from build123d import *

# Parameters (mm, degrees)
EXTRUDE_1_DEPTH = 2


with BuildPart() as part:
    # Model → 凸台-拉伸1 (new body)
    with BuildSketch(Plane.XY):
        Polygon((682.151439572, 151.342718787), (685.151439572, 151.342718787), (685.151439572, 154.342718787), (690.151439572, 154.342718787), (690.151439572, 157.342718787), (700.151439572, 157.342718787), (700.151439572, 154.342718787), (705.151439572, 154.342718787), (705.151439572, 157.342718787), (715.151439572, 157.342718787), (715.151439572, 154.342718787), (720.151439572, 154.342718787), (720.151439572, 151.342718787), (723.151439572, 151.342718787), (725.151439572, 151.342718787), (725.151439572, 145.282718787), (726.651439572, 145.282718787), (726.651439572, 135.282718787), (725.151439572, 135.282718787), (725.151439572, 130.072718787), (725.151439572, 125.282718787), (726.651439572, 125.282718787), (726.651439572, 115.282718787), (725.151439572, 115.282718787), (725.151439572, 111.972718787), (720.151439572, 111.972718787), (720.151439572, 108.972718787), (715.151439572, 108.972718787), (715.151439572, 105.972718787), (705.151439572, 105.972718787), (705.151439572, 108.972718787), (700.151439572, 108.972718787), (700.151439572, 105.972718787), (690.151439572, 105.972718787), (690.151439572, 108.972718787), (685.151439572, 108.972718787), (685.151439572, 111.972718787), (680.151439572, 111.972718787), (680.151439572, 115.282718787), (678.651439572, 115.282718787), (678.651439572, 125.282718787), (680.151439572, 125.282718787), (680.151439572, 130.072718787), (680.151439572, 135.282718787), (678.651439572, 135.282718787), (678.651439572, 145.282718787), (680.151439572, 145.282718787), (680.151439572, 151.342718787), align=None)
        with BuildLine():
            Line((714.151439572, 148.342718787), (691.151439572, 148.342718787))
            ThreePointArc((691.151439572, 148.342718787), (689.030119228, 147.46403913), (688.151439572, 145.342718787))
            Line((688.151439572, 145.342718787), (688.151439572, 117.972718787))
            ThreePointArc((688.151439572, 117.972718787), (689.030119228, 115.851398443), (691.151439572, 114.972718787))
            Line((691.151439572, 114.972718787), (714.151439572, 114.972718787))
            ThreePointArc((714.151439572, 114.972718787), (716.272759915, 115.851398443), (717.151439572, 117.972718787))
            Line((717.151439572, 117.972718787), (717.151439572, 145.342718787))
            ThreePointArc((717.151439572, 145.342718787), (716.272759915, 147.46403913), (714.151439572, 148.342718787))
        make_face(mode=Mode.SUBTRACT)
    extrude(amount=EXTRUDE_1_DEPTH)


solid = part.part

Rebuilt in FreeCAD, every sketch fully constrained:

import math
import FreeCAD as App
import Part
import Sketcher
from FreeCAD import Vector
Q = App.Units.Quantity

doc = App.newDocument("Part")
params = doc.addObject("Spreadsheet::Sheet", "Params")
for row, (alias, value) in enumerate([
    ("sketch1_radius", "3 mm"),
    ("sketch1_width", "5 mm"),
    ("sketch1_width2", "10 mm"),
    ("sketch1_width3", "23 mm"),
    ("sketch1_height", "3 mm"),
    ("pad1_length", "2 mm"),
], start=1):
    params.set(f"A{row}", alias)
    params.set(f"B{row}", "=" + value)
    params.setAlias(f"B{row}", alias)

body = doc.addObject("PartDesign::Body", "Body")

# Sketch on XY plane
sketch1 = body.newObject("Sketcher::SketchObject", "Sketch")
sketch1.AttachmentSupport = (doc.getObject("XY_Plane"), [""])
sketch1.MapMode = "FlatFace"
sketch1.addGeometry([
    Part.LineSegment(Vector(685.15144, 151.342719, 0), Vector(680.15144, 151.342719, 0)),  # 0
    Part.LineSegment(Vector(680.15144, 151.342719, 0), Vector(680.15144, 145.282719, 0)),  # 1
    Part.LineSegment(Vector(680.15144, 145.282719, 0), Vector(678.65144, 145.282719, 0)),  # 2
    Part.LineSegment(Vector(678.65144, 145.282719, 0), Vector(678.65144, 135.282719, 0)),  # 3
    Part.LineSegment(Vector(678.65144, 135.282719, 0), Vector(680.15144, 135.282719, 0)),  # 4
    Part.LineSegment(Vector(680.15144, 135.282719, 0), Vector(680.15144, 125.282719, 0)),  # 5
    Part.LineSegment(Vector(680.15144, 125.282719, 0), Vector(678.65144, 125.282719, 0)),  # 6
    Part.LineSegment(Vector(678.65144, 125.282719, 0), Vector(678.65144, 115.282719, 0)),  # 7
    Part.LineSegment(Vector(678.65144, 115.282719, 0), Vector(680.15144, 115.282719, 0)),  # 8
    Part.LineSegment(Vector(680.15144, 115.282719, 0), Vector(680.15144, 111.972719, 0)),  # 9
    Part.LineSegment(Vector(680.15144, 111.972719, 0), Vector(685.15144, 111.972719, 0)),  # 10
    Part.LineSegment(Vector(685.15144, 111.972719, 0), Vector(685.15144, 108.972719, 0)),  # 11
    Part.LineSegment(Vector(685.15144, 108.972719, 0), Vector(690.15144, 108.972719, 0)),  # 12
    Part.LineSegment(Vector(690.15144, 108.972719, 0), Vector(690.15144, 105.972719, 0)),  # 13
    Part.LineSegment(Vector(690.15144, 105.972719, 0), Vector(700.15144, 105.972719, 0)),  # 14
    Part.LineSegment(Vector(700.15144, 105.972719, 0), Vector(700.15144, 108.972719, 0)),  # 15
    Part.LineSegment(Vector(700.15144, 108.972719, 0), Vector(705.15144, 108.972719, 0)),  # 16
    Part.LineSegment(Vector(705.15144, 108.972719, 0), Vector(705.15144, 105.972719, 0)),  # 17
    Part.LineSegment(Vector(705.15144, 105.972719, 0), Vector(715.15144, 105.972719, 0)),  # 18
    Part.LineSegment(Vector(715.15144, 105.972719, 0), Vector(715.15144, 108.972719, 0)),  # 19
    Part.LineSegment(Vector(715.15144, 108.972719, 0), Vector(720.15144, 108.972719, 0)),  # 20
    Part.LineSegment(Vector(720.15144, 108.972719, 0), Vector(720.15144, 111.972719, 0)),  # 21
    Part.LineSegment(Vector(720.15144, 111.972719, 0), Vector(725.15144, 111.972719, 0)),  # 22
    Part.LineSegment(Vector(725.15144, 111.972719, 0), Vector(725.15144, 115.282719, 0)),  # 23
    Part.LineSegment(Vector(725.15144, 115.282719, 0), Vector(726.65144, 115.282719, 0)),  # 24
    Part.LineSegment(Vector(726.65144, 115.282719, 0), Vector(726.65144, 125.282719, 0)),  # 25
    Part.LineSegment(Vector(726.65144, 125.282719, 0), Vector(725.15144, 125.282719, 0)),  # 26
    Part.LineSegment(Vector(725.15144, 125.282719, 0), Vector(725.15144, 135.282719, 0)),  # 27
    Part.LineSegment(Vector(725.15144, 135.282719, 0), Vector(726.65144, 135.282719, 0)),  # 28
    Part.LineSegment(Vector(726.65144, 135.282719, 0), Vector(726.65144, 145.282719, 0)),  # 29
    Part.LineSegment(Vector(726.65144, 145.282719, 0), Vector(725.15144, 145.282719, 0)),  # 30
    Part.LineSegment(Vector(725.15144, 145.282719, 0), Vector(725.15144, 151.342719, 0)),  # 31
    Part.LineSegment(Vector(725.15144, 151.342719, 0), Vector(720.15144, 151.342719, 0)),  # 32
    Part.LineSegment(Vector(720.15144, 151.342719, 0), Vector(720.15144, 154.342719, 0)),  # 33
    Part.LineSegment(Vector(720.15144, 154.342719, 0), Vector(715.15144, 154.342719, 0)),  # 34
    Part.LineSegment(Vector(715.15144, 154.342719, 0), Vector(715.15144, 157.342719, 0)),  # 35
    Part.LineSegment(Vector(715.15144, 157.342719, 0), Vector(705.15144, 157.342719, 0)),  # 36
    Part.LineSegment(Vector(705.15144, 157.342719, 0), Vector(705.15144, 154.342719, 0)),  # 37
    Part.LineSegment(Vector(705.15144, 154.342719, 0), Vector(700.15144, 154.342719, 0)),  # 38
    Part.LineSegment(Vector(700.15144, 154.342719, 0), Vector(700.15144, 157.342719, 0)),  # 39
    Part.LineSegment(Vector(700.15144, 157.342719, 0), Vector(690.15144, 157.342719, 0)),  # 40
    Part.LineSegment(Vector(690.15144, 157.342719, 0), Vector(690.15144, 154.342719, 0)),  # 41
    Part.LineSegment(Vector(690.15144, 154.342719, 0), Vector(685.15144, 154.342719, 0)),  # 42
    Part.LineSegment(Vector(685.15144, 154.342719, 0), Vector(685.15144, 151.342719, 0)),  # 43
    Part.ArcOfCircle(Part.Circle(Vector(714.15144, 145.342719, 0), Vector(0, 0, 1), 3), math.radians(0), math.radians(90)),  # 44
    Part.LineSegment(Vector(717.15144, 145.342719, 0), Vector(717.15144, 117.972719, 0)),  # 45
    Part.ArcOfCircle(Part.Circle(Vector(714.15144, 117.972719, 0), Vector(0, 0, 1), 3), math.radians(-90), math.radians(0)),  # 46
    Part.LineSegment(Vector(714.15144, 114.972719, 0), Vector(691.15144, 114.972719, 0)),  # 47
    Part.ArcOfCircle(Part.Circle(Vector(691.15144, 117.972719, 0), Vector(0, 0, 1), 3), math.radians(180), math.radians(270)),  # 48
    Part.LineSegment(Vector(688.15144, 117.972719, 0), Vector(688.15144, 145.342719, 0)),  # 49
    Part.ArcOfCircle(Part.Circle(Vector(691.15144, 145.342719, 0), Vector(0, 0, 1), 3), math.radians(90), math.radians(180)),  # 50
    Part.LineSegment(Vector(691.15144, 148.342719, 0), Vector(714.15144, 148.342719, 0)),  # 51
], False)
sketch1.addConstraint([
    Sketcher.Constraint("Coincident", 0, 2, 1, 1),
    Sketcher.Constraint("Coincident", 1, 2, 2, 1),
    Sketcher.Constraint("Coincident", 2, 2, 3, 1),
    Sketcher.Constraint("Coincident", 3, 2, 4, 1),
    Sketcher.Constraint("Coincident", 4, 2, 5, 1),
    Sketcher.Constraint("Coincident", 5, 2, 6, 1),
    Sketcher.Constraint("Coincident", 6, 2, 7, 1),
    Sketcher.Constraint("Coincident", 7, 2, 8, 1),
    Sketcher.Constraint("Coincident", 8, 2, 9, 1),
    Sketcher.Constraint("Coincident", 9, 2, 10, 1),
    Sketcher.Constraint("Coincident", 10, 2, 11, 1),
    Sketcher.Constraint("Coincident", 11, 2, 12, 1),
    Sketcher.Constraint("Coincident", 12, 2, 13, 1),
    Sketcher.Constraint("Coincident", 13, 2, 14, 1),
    Sketcher.Constraint("Coincident", 14, 2, 15, 1),
    Sketcher.Constraint("Coincident", 15, 2, 16, 1),
    Sketcher.Constraint("Coincident", 16, 2, 17, 1),
    Sketcher.Constraint("Coincident", 17, 2, 18, 1),
    Sketcher.Constraint("Coincident", 18, 2, 19, 1),
    Sketcher.Constraint("Coincident", 19, 2, 20, 1),
    Sketcher.Constraint("Coincident", 20, 2, 21, 1),
    Sketcher.Constraint("Coincident", 21, 2, 22, 1),
    Sketcher.Constraint("Coincident", 22, 2, 23, 1),
    Sketcher.Constraint("Coincident", 23, 2, 24, 1),
    Sketcher.Constraint("Coincident", 24, 2, 25, 1),
    Sketcher.Constraint("Coincident", 25, 2, 26, 1),
    Sketcher.Constraint("Coincident", 26, 2, 27, 1),
    Sketcher.Constraint("Coincident", 27, 2, 28, 1),
    Sketcher.Constraint("Coincident", 28, 2, 29, 1),
    Sketcher.Constraint("Coincident", 29, 2, 30, 1),
    Sketcher.Constraint("Coincident", 30, 2, 31, 1),
    Sketcher.Constraint("Coincident", 31, 2, 32, 1),
    Sketcher.Constraint("Coincident", 32, 2, 33, 1),
    Sketcher.Constraint("Coincident", 33, 2, 34, 1),
    Sketcher.Constraint("Coincident", 34, 2, 35, 1),
    Sketcher.Constraint("Coincident", 35, 2, 36, 1),
    Sketcher.Constraint("Coincident", 36, 2, 37, 1),
    Sketcher.Constraint("Coincident", 37, 2, 38, 1),
    Sketcher.Constraint("Coincident", 38, 2, 39, 1),
    Sketcher.Constraint("Coincident", 39, 2, 40, 1),
    Sketcher.Constraint("Coincident", 40, 2, 41, 1),
    Sketcher.Constraint("Coincident", 41, 2, 42, 1),
    Sketcher.Constraint("Coincident", 42, 2, 43, 1),
    Sketcher.Constraint("Coincident", 43, 2, 0, 1),
    Sketcher.Constraint("Tangent", 44, 1, 45, 1),
    Sketcher.Constraint("Tangent", 45, 2, 46, 2),
    Sketcher.Constraint("Tangent", 46, 1, 47, 1),
    Sketcher.Constraint("Tangent", 47, 2, 48, 2),
    Sketcher.Constraint("Tangent", 48, 1, 49, 1),
    Sketcher.Constraint("Tangent", 49, 2, 50, 2),
    Sketcher.Constraint("Tangent", 50, 1, 51, 1),
    Sketcher.Constraint("Tangent", 51, 2, 44, 2),
    Sketcher.Constraint("Horizontal", 0),
    Sketcher.Constraint("Vertical", 1),
    Sketcher.Constraint("Horizontal", 2),
    Sketcher.Constraint("Vertical", 3),
    Sketcher.Constraint("Horizontal", 4),
    Sketcher.Constraint("Vertical", 5),
    Sketcher.Constraint("Horizontal", 6),
    Sketcher.Constraint("Vertical", 7),
    Sketcher.Constraint("Horizontal", 8),
    Sketcher.Constraint("Vertical", 9),
    Sketcher.Constraint("Horizontal", 10),
    Sketcher.Constraint("Vertical", 11),
    Sketcher.Constraint("Horizontal", 12),
    Sketcher.Constraint("Vertical", 13),
    Sketcher.Constraint("Horizontal", 14),
    Sketcher.Constraint("Vertical", 15),
    Sketcher.Constraint("Horizontal", 16),
    Sketcher.Constraint("Vertical", 17),
    Sketcher.Constraint("Horizontal", 18),
    Sketcher.Constraint("Vertical", 19),
    Sketcher.Constraint("Horizontal", 20),
    Sketcher.Constraint("Vertical", 21),
    Sketcher.Constraint("Horizontal", 22),
    Sketcher.Constraint("Vertical", 23),
    Sketcher.Constraint("Horizontal", 24),
    Sketcher.Constraint("Vertical", 25),
    Sketcher.Constraint("Horizontal", 26),
    Sketcher.Constraint("Vertical", 27),
    Sketcher.Constraint("Horizontal", 28),
    Sketcher.Constraint("Vertical", 29),
    Sketcher.Constraint("Horizontal", 30),
    Sketcher.Constraint("Vertical", 31),
    Sketcher.Constraint("Horizontal", 32),
    Sketcher.Constraint("Vertical", 33),
    Sketcher.Constraint("Horizontal", 34),
    Sketcher.Constraint("Vertical", 35),
    Sketcher.Constraint("Horizontal", 36),
    Sketcher.Constraint("Vertical", 37),
    Sketcher.Constraint("Horizontal", 38),
    Sketcher.Constraint("Vertical", 39),
    Sketcher.Constraint("Horizontal", 40),
    Sketcher.Constraint("Vertical", 41),
    Sketcher.Constraint("Horizontal", 42),
    Sketcher.Constraint("Vertical", 43),
    Sketcher.Constraint("Vertical", 45),
    Sketcher.Constraint("Horizontal", 47),
    Sketcher.Constraint("Vertical", 49),
    Sketcher.Constraint("Horizontal", 51),
    Sketcher.Constraint("Equal", 44, 46),
    Sketcher.Constraint("Equal", 46, 48),
    Sketcher.Constraint("Equal", 48, 50),
    Sketcher.Constraint("Horizontal", 12, 2, 15, 2),
    Sketcher.Constraint("Horizontal", 14, 2, 17, 2),
    Sketcher.Constraint("Horizontal", 16, 2, 19, 2),
    Sketcher.Constraint("Horizontal", 10, 2, 21, 2),
    Sketcher.Constraint("Horizontal", 8, 2, 23, 2),
    Sketcher.Constraint("Horizontal", 6, 2, 25, 2),
    Sketcher.Constraint("Horizontal", 4, 2, 27, 2),
    Sketcher.Constraint("Horizontal", 2, 2, 29, 2),
    Sketcher.Constraint("Horizontal", 0, 2, 31, 2),
    Sketcher.Constraint("Horizontal", 34, 2, 37, 2),
    Sketcher.Constraint("Horizontal", 36, 2, 39, 2),
    Sketcher.Constraint("Horizontal", 38, 2, 41, 2),
    Sketcher.Constraint("Vertical", 1, 2, 4, 2),
    Sketcher.Constraint("Vertical", 3, 2, 6, 2),
    Sketcher.Constraint("Vertical", 5, 2, 8, 2),
    Sketcher.Constraint("Vertical", 23, 2, 26, 2),
    Sketcher.Constraint("Vertical", 25, 2, 28, 2),
    Sketcher.Constraint("Vertical", 27, 2, 30, 2),
    Sketcher.Constraint("Vertical", 21, 2, 32, 2),
    Sketcher.Constraint("Vertical", 19, 2, 34, 2),
    Sketcher.Constraint("Vertical", 17, 2, 36, 2),
    Sketcher.Constraint("Vertical", 15, 2, 38, 2),
    Sketcher.Constraint("Vertical", 13, 2, 40, 2),
    Sketcher.Constraint("Vertical", 11, 2, 42, 2),
    Sketcher.Constraint("Equal", 10, 12),
    Sketcher.Constraint("Equal", 12, 16),
    Sketcher.Constraint("Equal", 14, 18),
    Sketcher.Constraint("Equal", 16, 20),
    Sketcher.Constraint("Equal", 20, 22),
    Sketcher.Constraint("Equal", 8, 24),
    Sketcher.Constraint("Equal", 40, 3),
    Sketcher.Constraint("Equal", 3, 5),
    Sketcher.Constraint("Equal", 5, 7),
    Sketcher.Constraint("Equal", 11, 13),
    Sketcher.Constraint("Equal", 21, 33),
    Sketcher.Constraint("Equal", 33, 35),
    Sketcher.Constraint("Radius", 44, Q("3 mm")),
    Sketcher.Constraint("DistanceX", 0, 2, 0, 1, Q("5 mm")),
    Sketcher.Constraint("DistanceX", 14, 1, 14, 2, Q("10 mm")),
    Sketcher.Constraint("DistanceX", 47, 2, 47, 1, Q("23 mm")),
    Sketcher.Constraint("DistanceY", 11, 2, 11, 1, Q("3 mm")),
    Sketcher.Constraint("DistanceX", 2, 2, 2, 1, Q("1.5 mm")),
    Sketcher.Constraint("DistanceX", 0, 2, 50, 3, Q("11 mm")),
    Sketcher.Constraint("DistanceY", 50, 3, 0, 2, Q("6 mm")),
    Sketcher.Constraint("DistanceY", 9, 2, 48, 3, Q("6 mm")),
    Sketcher.Constraint("DistanceY", 1, 2, 1, 1, Q("6.06 mm")),
    Sketcher.Constraint("DistanceY", 9, 2, 9, 1, Q("3.31 mm")),
    Sketcher.Constraint("DistanceX", -1, 1, 44, 3, Q("714.15144 mm")),
    Sketcher.Constraint("DistanceY", -1, 1, 44, 3, Q("145.342719 mm")),
])
sketch1.setExpression("Constraints[139]", "Params.sketch1_radius")
sketch1.setExpression("Constraints[140]", "Params.sketch1_width")
sketch1.setExpression("Constraints[141]", "Params.sketch1_width2")
sketch1.setExpression("Constraints[142]", "Params.sketch1_width3")
sketch1.setExpression("Constraints[143]", "Params.sketch1_height")
pad1 = body.newObject("PartDesign::Pad", "Pad")
pad1.Profile = sketch1
pad1.setExpression("Length", "Params.pad1_length")

doc.recompute()
